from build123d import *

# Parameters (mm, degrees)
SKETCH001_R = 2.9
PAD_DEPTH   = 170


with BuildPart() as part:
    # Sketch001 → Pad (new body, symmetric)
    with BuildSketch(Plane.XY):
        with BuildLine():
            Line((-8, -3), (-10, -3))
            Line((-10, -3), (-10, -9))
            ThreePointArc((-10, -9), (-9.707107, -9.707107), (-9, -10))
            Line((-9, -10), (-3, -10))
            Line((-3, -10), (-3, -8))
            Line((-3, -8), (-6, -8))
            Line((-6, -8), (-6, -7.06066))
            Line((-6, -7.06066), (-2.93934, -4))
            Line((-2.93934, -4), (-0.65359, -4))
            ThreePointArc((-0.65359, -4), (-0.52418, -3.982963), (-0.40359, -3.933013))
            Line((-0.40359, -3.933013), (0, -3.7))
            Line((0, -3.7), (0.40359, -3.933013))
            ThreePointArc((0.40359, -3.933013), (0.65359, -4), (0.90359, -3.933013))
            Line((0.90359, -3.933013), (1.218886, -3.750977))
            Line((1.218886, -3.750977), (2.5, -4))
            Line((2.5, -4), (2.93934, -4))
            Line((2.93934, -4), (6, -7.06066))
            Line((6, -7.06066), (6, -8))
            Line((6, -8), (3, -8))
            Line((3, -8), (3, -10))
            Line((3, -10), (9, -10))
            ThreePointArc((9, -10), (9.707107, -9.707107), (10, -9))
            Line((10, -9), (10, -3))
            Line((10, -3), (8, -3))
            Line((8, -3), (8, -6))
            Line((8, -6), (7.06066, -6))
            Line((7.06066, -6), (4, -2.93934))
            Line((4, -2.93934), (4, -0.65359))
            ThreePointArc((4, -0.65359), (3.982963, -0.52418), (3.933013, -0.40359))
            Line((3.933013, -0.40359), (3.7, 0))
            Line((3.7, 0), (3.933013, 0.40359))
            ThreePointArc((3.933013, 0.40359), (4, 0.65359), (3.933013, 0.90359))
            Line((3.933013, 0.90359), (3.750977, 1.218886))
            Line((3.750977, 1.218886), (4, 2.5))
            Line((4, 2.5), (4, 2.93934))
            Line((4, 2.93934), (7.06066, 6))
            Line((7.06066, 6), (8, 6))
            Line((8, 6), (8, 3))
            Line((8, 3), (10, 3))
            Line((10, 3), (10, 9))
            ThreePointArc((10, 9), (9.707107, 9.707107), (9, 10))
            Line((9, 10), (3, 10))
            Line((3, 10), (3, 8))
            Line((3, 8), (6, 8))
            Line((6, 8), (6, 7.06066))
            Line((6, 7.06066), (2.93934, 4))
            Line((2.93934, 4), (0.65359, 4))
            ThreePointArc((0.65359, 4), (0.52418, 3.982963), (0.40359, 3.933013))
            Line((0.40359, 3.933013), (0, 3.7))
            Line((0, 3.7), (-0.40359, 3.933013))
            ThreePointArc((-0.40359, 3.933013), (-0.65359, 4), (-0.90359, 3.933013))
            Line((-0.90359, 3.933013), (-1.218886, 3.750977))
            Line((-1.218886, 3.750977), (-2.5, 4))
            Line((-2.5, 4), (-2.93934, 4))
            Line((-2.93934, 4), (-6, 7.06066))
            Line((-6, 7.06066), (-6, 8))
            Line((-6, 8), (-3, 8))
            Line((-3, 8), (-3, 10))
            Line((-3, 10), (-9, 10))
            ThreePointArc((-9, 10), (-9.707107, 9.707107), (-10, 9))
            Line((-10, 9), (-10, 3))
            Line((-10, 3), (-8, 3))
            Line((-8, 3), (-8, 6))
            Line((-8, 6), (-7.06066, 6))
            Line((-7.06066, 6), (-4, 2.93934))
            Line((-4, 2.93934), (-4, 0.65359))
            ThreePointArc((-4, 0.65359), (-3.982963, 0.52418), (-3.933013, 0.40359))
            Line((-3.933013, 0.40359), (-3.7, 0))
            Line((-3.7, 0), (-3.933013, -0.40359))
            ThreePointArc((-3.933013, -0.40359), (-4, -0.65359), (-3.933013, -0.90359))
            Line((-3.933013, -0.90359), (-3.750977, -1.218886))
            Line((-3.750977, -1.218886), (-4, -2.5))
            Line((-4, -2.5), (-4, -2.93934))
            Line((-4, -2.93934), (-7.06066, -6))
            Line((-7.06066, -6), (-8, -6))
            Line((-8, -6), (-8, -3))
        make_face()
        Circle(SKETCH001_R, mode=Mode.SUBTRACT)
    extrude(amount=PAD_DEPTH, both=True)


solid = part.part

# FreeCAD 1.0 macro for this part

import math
import FreeCAD as App
import Part
import Sketcher

V = App.Vector
Q = App.Units.Quantity

doc = App.newDocument("Part")
body = doc.addObject("PartDesign::Body", "Body")

sketch1 = body.newObject("Sketcher::SketchObject", "Sketch")
sketch1.AttachmentSupport = (doc.getObject("XY_Plane"), [""])
sketch1.MapMode = "FlatFace"
sketch1.addGeometry(Part.LineSegment(V(-8, -3, 0), V(-10, -3, 0)), False)
sketch1.addGeometry(Part.LineSegment(V(-10, -3, 0), V(-10, -9, 0)), False)
sketch1.addGeometry(Part.ArcOfCircle(Part.Circle(V(-9, -9, 0), V(0, 0, 1), 1), math.radians(180), math.radians(270)), False)
sketch1.addGeometry(Part.LineSegment(V(-9, -10, 0), V(-3, -10, 0)), False)
sketch1.addGeometry(Part.LineSegment(V(-3, -10, 0), V(-3, -8, 0)), False)
sketch1.addGeometry(Part.LineSegment(V(-3, -8, 0), V(-6, -8, 0)), False)
sketch1.addGeometry(Part.LineSegment(V(-6, -8, 0), V(-6, -7.06, 0)), False)
sketch1.addGeometry(Part.LineSegment(V(-6, -7.06, 0), V(-2.94, -4, 0)), False)
sketch1.addGeometry(Part.LineSegment(V(-2.94, -4, 0), V(-0.65, -4, 0)), False)
sketch1.addGeometry(Part.ArcOfCircle(Part.Circle(V(-0.65, -3.5, 0), V(0, 0, 1), 0.5), math.radians(-90), math.radians(-60)), False)
sketch1.addGeometry(Part.LineSegment(V(-0.4, -3.93, 0), V(0, -3.7, 0)), False)
sketch1.addGeometry(Part.LineSegment(V(0, -3.7, 0), V(0.4, -3.93, 0)), False)
sketch1.addGeometry(Part.ArcOfCircle(Part.Circle(V(0.65, -3.5, 0), V(0, 0, 1), 0.5), math.radians(-120), math.radians(-60)), False)
sketch1.addGeometry(Part.LineSegment(V(0.9, -3.93, 0), V(1.22, -3.75, 0)), False)
sketch1.addGeometry(Part.LineSegment(V(1.22, -3.75, 0), V(2.5, -4, 0)), False)
sketch1.addGeometry(Part.LineSegment(V(2.5, -4, 0), V(2.94, -4, 0)), False)
sketch1.addGeometry(Part.LineSegment(V(2.94, -4, 0), V(6, -7.06, 0)), False)
sketch1.addGeometry(Part.LineSegment(V(6, -7.06, 0), V(6, -8, 0)), False)
sketch1.addGeometry(Part.LineSegment(V(6, -8, 0), V(3, -8, 0)), False)
sketch1.addGeometry(Part.LineSegment(V(3, -8, 0), V(3, -10, 0)), False)
sketch1.addGeometry(Part.LineSegment(V(3, -10, 0), V(9, -10, 0)), False)
sketch1.addGeometry(Part.ArcOfCircle(Part.Circle(V(9, -9, 0), V(0, 0, 1), 1), math.radians(-90), math.radians(0)), False)
sketch1.addGeometry(Part.LineSegment(V(10, -9, 0), V(10, -3, 0)), False)
sketch1.addGeometry(Part.LineSegment(V(10, -3, 0), V(8, -3, 0)), False)
sketch1.addGeometry(Part.LineSegment(V(8, -3, 0), V(8, -6, 0)), False)
sketch1.addGeometry(Part.LineSegment(V(8, -6, 0), V(7.06, -6, 0)), False)
sketch1.addGeometry(Part.LineSegment(V(7.06, -6, 0), V(4, -2.94, 0)), False)
sketch1.addGeometry(Part.LineSegment(V(4, -2.94, 0), V(4, -0.65, 0)), False)
sketch1.addGeometry(Part.ArcOfCircle(Part.Circle(V(3.5, -0.65, 0), V(0, 0, 1), 0.5), math.radians(0), math.radians(30)), False)
sketch1.addGeometry(Part.LineSegment(V(3.93, -0.4, 0), V(3.7, 0, 0)), False)
sketch1.addGeometry(Part.LineSegment(V(3.7, 0, 0), V(3.93, 0.4, 0)), False)
sketch1.addGeometry(Part.ArcOfCircle(Part.Circle(V(3.5, 0.65, 0), V(0, 0, 1), 0.5), math.radians(-30), math.radians(30)), False)
sketch1.addGeometry(Part.LineSegment(V(3.93, 0.9, 0), V(3.75, 1.22, 0)), False)
sketch1.addGeometry(Part.LineSegment(V(3.75, 1.22, 0), V(4, 2.5, 0)), False)
sketch1.addGeometry(Part.LineSegment(V(4, 2.5, 0), V(4, 2.94, 0)), False)
sketch1.addGeometry(Part.LineSegment(V(4, 2.94, 0), V(7.06, 6, 0)), False)
sketch1.addGeometry(Part.LineSegment(V(7.06, 6, 0), V(8, 6, 0)), False)
sketch1.addGeometry(Part.LineSegment(V(8, 6, 0), V(8, 3, 0)), False)
sketch1.addGeometry(Part.LineSegment(V(8, 3, 0), V(10, 3, 0)), False)
sketch1.addGeometry(Part.LineSegment(V(10, 3, 0), V(10, 9, 0)), False)
sketch1.addGeometry(Part.ArcOfCircle(Part.Circle(V(9, 9, 0), V(0, 0, 1), 1), math.radians(0), math.radians(90)), False)
sketch1.addGeometry(Part.LineSegment(V(9, 10, 0), V(3, 10, 0)), False)
sketch1.addGeometry(Part.LineSegment(V(3, 10, 0), V(3, 8, 0)), False)
sketch1.addGeometry(Part.LineSegment(V(3, 8, 0), V(6, 8, 0)), False)
sketch1.addGeometry(Part.LineSegment(V(6, 8, 0), V(6, 7.06, 0)), False)
sketch1.addGeometry(Part.LineSegment(V(6, 7.06, 0), V(2.94, 4, 0)), False)
sketch1.addGeometry(Part.LineSegment(V(2.94, 4, 0), V(0.65, 4, 0)), False)
sketch1.addGeometry(Part.ArcOfCircle(Part.Circle(V(0.65, 3.5, 0), V(0, 0, 1), 0.5), math.radians(90), math.radians(120)), False)
sketch1.addGeometry(Part.LineSegment(V(0.4, 3.93, 0), V(0, 3.7, 0)), False)
sketch1.addGeometry(Part.LineSegment(V(0, 3.7, 0), V(-0.4, 3.93, 0)), False)
sketch1.addGeometry(Part.ArcOfCircle(Part.Circle(V(-0.65, 3.5, 0), V(0, 0, 1), 0.5), math.radians(60), math.radians(120)), False)
sketch1.addGeometry(Part.LineSegment(V(-0.9, 3.93, 0), V(-1.22, 3.75, 0)), False)
sketch1.addGeometry(Part.LineSegment(V(-1.22, 3.75, 0), V(-2.5, 4, 0)), False)
sketch1.addGeometry(Part.LineSegment(V(-2.5, 4, 0), V(-2.94, 4, 0)), False)
sketch1.addGeometry(Part.LineSegment(V(-2.94, 4, 0), V(-6, 7.06, 0)), False)
sketch1.addGeometry(Part.LineSegment(V(-6, 7.06, 0), V(-6, 8, 0)), False)
sketch1.addGeometry(Part.LineSegment(V(-6, 8, 0), V(-3, 8, 0)), False)
sketch1.addGeometry(Part.LineSegment(V(-3, 8, 0), V(-3, 10, 0)), False)
sketch1.addGeometry(Part.LineSegment(V(-3, 10, 0), V(-9, 10, 0)), False)
sketch1.addGeometry(Part.ArcOfCircle(Part.Circle(V(-9, 9, 0), V(0, 0, 1), 1), math.radians(90), math.radians(180)), False)
sketch1.addGeometry(Part.LineSegment(V(-10, 9, 0), V(-10, 3, 0)), False)
sketch1.addGeometry(Part.LineSegment(V(-10, 3, 0), V(-8, 3, 0)), False)
sketch1.addGeometry(Part.LineSegment(V(-8, 3, 0), V(-8, 6, 0)), False)
sketch1.addGeometry(Part.LineSegment(V(-8, 6, 0), V(-7.06, 6, 0)), False)
sketch1.addGeometry(Part.LineSegment(V(-7.06, 6, 0), V(-4, 2.94, 0)), False)
sketch1.addGeometry(Part.LineSegment(V(-4, 2.94, 0), V(-4, 0.65, 0)), False)
sketch1.addGeometry(Part.ArcOfCircle(Part.Circle(V(-3.5, 0.65, 0), V(0, 0, 1), 0.5), math.radians(180), math.radians(210)), False)
sketch1.addGeometry(Part.LineSegment(V(-3.93, 0.4, 0), V(-3.7, 0, 0)), False)
sketch1.addGeometry(Part.LineSegment(V(-3.7, 0, 0), V(-3.93, -0.4, 0)), False)
sketch1.addGeometry(Part.ArcOfCircle(Part.Circle(V(-3.5, -0.65, 0), V(0, 0, 1), 0.5), math.radians(150), math.radians(210)), False)
sketch1.addGeometry(Part.LineSegment(V(-3.93, -0.9, 0), V(-3.75, -1.22, 0)), False)
sketch1.addGeometry(Part.LineSegment(V(-3.75, -1.22, 0), V(-4, -2.5, 0)), False)
sketch1.addGeometry(Part.LineSegment(V(-4, -2.5, 0), V(-4, -2.94, 0)), False)
sketch1.addGeometry(Part.LineSegment(V(-4, -2.94, 0), V(-7.06, -6, 0)), False)
sketch1.addGeometry(Part.LineSegment(V(-7.06, -6, 0), V(-8, -6, 0)), False)
sketch1.addGeometry(Part.LineSegment(V(-8, -6, 0), V(-8, -3, 0)), False)
sketch1.addGeometry(Part.Circle(V(0, 0, 0), V(0, 0, 1), 2.9), False)
sketch1.addConstraint(Sketcher.Constraint("Coincident", 0, 2, 1, 1))
sketch1.addConstraint(Sketcher.Constraint("Tangent", 1, 2, 2, 1))
sketch1.addConstraint(Sketcher.Constraint("Tangent", 2, 2, 3, 1))
sketch1.addConstraint(Sketcher.Constraint("Coincident", 3, 2, 4, 1))
sketch1.addConstraint(Sketcher.Constraint("Coincident", 4, 2, 5, 1))
sketch1.addConstraint(Sketcher.Constraint("Coincident", 5, 2, 6, 1))
sketch1.addConstraint(Sketcher.Constraint("Coincident", 6, 2, 7, 1))
sketch1.addConstraint(Sketcher.Constraint("Coincident", 7, 2, 8, 1))
sketch1.addConstraint(Sketcher.Constraint("Coincident", 8, 2, 9, 1))
sketch1.addConstraint(Sketcher.Constraint("Tangent", 9, 2, 10, 1))
sketch1.addConstraint(Sketcher.Constraint("Coincident", 10, 2, 11, 1))
sketch1.addConstraint(Sketcher.Constraint("Coincident", 11, 2, 12, 1))
sketch1.addConstraint(Sketcher.Constraint("Tangent", 12, 2, 13, 1))
sketch1.addConstraint(Sketcher.Constraint("Coincident", 13, 2, 14, 1))
sketch1.addConstraint(Sketcher.Constraint("Coincident", 14, 2, 15, 1))
sketch1.addConstraint(Sketcher.Constraint("Coincident", 15, 2, 16, 1))
sketch1.addConstraint(Sketcher.Constraint("Coincident", 16, 2, 17, 1))
sketch1.addConstraint(Sketcher.Constraint("Coincident", 17, 2, 18, 1))
sketch1.addConstraint(Sketcher.Constraint("Coincident", 18, 2, 19, 1))
sketch1.addConstraint(Sketcher.Constraint("Coincident", 19, 2, 20, 1))
sketch1.addConstraint(Sketcher.Constraint("Tangent", 20, 2, 21, 1))
sketch1.addConstraint(Sketcher.Constraint("Tangent", 21, 2, 22, 1))
sketch1.addConstraint(Sketcher.Constraint("Coincident", 22, 2, 23, 1))
sketch1.addConstraint(Sketcher.Constraint("Coincident", 23, 2, 24, 1))
sketch1.addConstraint(Sketcher.Constraint("Coincident", 24, 2, 25, 1))
sketch1.addConstraint(Sketcher.Constraint("Coincident", 25, 2, 26, 1))
sketch1.addConstraint(Sketcher.Constraint("Coincident", 26, 2, 27, 1))
sketch1.addConstraint(Sketcher.Constraint("Coincident", 27, 2, 28, 1))
sketch1.addConstraint(Sketcher.Constraint("Tangent", 28, 2, 29, 1))
sketch1.addConstraint(Sketcher.Constraint("Coincident", 29, 2, 30, 1))
sketch1.addConstraint(Sketcher.Constraint("Coincident", 30, 2, 31, 1))
sketch1.addConstraint(Sketcher.Constraint("Tangent", 31, 2, 32, 1))
sketch1.addConstraint(Sketcher.Constraint("Coincident", 32, 2, 33, 1))
sketch1.addConstraint(Sketcher.Constraint("Coincident", 33, 2, 34, 1))
sketch1.addConstraint(Sketcher.Constraint("Coincident", 34, 2, 35, 1))
sketch1.addConstraint(Sketcher.Constraint("Coincident", 35, 2, 36, 1))
sketch1.addConstraint(Sketcher.Constraint("Coincident", 36, 2, 37, 1))
sketch1.addConstraint(Sketcher.Constraint("Coincident", 37, 2, 38, 1))
sketch1.addConstraint(Sketcher.Constraint("Coincident", 38, 2, 39, 1))
sketch1.addConstraint(Sketcher.Constraint("Tangent", 39, 2, 40, 1))
sketch1.addConstraint(Sketcher.Constraint("Tangent", 40, 2, 41, 1))
sketch1.addConstraint(Sketcher.Constraint("Coincident", 41, 2, 42, 1))
sketch1.addConstraint(Sketcher.Constraint("Coincident", 42, 2, 43, 1))
sketch1.addConstraint(Sketcher.Constraint("Coincident", 43, 2, 44, 1))
sketch1.addConstraint(Sketcher.Constraint("Coincident", 44, 2, 45, 1))
sketch1.addConstraint(Sketcher.Constraint("Coincident", 45, 2, 46, 1))
sketch1.addConstraint(Sketcher.Constraint("Coincident", 46, 2, 47, 1))
sketch1.addConstraint(Sketcher.Constraint("Tangent", 47, 2, 48, 1))
sketch1.addConstraint(Sketcher.Constraint("Coincident", 48, 2, 49, 1))
sketch1.addConstraint(Sketcher.Constraint("Coincident", 49, 2, 50, 1))
sketch1.addConstraint(Sketcher.Constraint("Tangent", 50, 2, 51, 1))
sketch1.addConstraint(Sketcher.Constraint("Coincident", 51, 2, 52, 1))
sketch1.addConstraint(Sketcher.Constraint("Coincident", 52, 2, 53, 1))
sketch1.addConstraint(Sketcher.Constraint("Coincident", 53, 2, 54, 1))
sketch1.addConstraint(Sketcher.Constraint("Coincident", 54, 2, 55, 1))
sketch1.addConstraint(Sketcher.Constraint("Coincident", 55, 2, 56, 1))
sketch1.addConstraint(Sketcher.Constraint("Coincident", 56, 2, 57, 1))
sketch1.addConstraint(Sketcher.Constraint("Coincident", 57, 2, 58, 1))
sketch1.addConstraint(Sketcher.Constraint("Tangent", 58, 2, 59, 1))
sketch1.addConstraint(Sketcher.Constraint("Tangent", 59, 2, 60, 1))
sketch1.addConstraint(Sketcher.Constraint("Coincident", 60, 2, 61, 1))
sketch1.addConstraint(Sketcher.Constraint("Coincident", 61, 2, 62, 1))
sketch1.addConstraint(Sketcher.Constraint("Coincident", 62, 2, 63, 1))
sketch1.addConstraint(Sketcher.Constraint("Coincident", 63, 2, 64, 1))
sketch1.addConstraint(Sketcher.Constraint("Coincident", 64, 2, 65, 1))
sketch1.addConstraint(Sketcher.Constraint("Coincident", 65, 2, 66, 1))
sketch1.addConstraint(Sketcher.Constraint("Tangent", 66, 2, 67, 1))
sketch1.addConstraint(Sketcher.Constraint("Coincident", 67, 2, 68, 1))
sketch1.addConstraint(Sketcher.Constraint("Coincident", 68, 2, 69, 1))
sketch1.addConstraint(Sketcher.Constraint("Tangent", 69, 2, 70, 1))
sketch1.addConstraint(Sketcher.Constraint("Coincident", 70, 2, 71, 1))
sketch1.addConstraint(Sketcher.Constraint("Coincident", 71, 2, 72, 1))
sketch1.addConstraint(Sketcher.Constraint("Coincident", 72, 2, 73, 1))
sketch1.addConstraint(Sketcher.Constraint("Coincident", 73, 2, 74, 1))
sketch1.addConstraint(Sketcher.Constraint("Coincident", 74, 2, 75, 1))
sketch1.addConstraint(Sketcher.Constraint("Coincident", 75, 2, 0, 1))
sketch1.addConstraint(Sketcher.Constraint("Horizontal", 0))
sketch1.addConstraint(Sketcher.Constraint("Vertical", 1))
sketch1.addConstraint(Sketcher.Constraint("Horizontal", 3))
sketch1.addConstraint(Sketcher.Constraint("Vertical", 4))
sketch1.addConstraint(Sketcher.Constraint("Horizontal", 5))
sketch1.addConstraint(Sketcher.Constraint("Vertical", 6))
sketch1.addConstraint(Sketcher.Constraint("Horizontal", 8))
sketch1.addConstraint(Sketcher.Constraint("Horizontal", 15))
sketch1.addConstraint(Sketcher.Constraint("Vertical", 17))
sketch1.addConstraint(Sketcher.Constraint("Horizontal", 18))
sketch1.addConstraint(Sketcher.Constraint("Vertical", 19))
sketch1.addConstraint(Sketcher.Constraint("Horizontal", 20))
sketch1.addConstraint(Sketcher.Constraint("Vertical", 22))
sketch1.addConstraint(Sketcher.Constraint("Horizontal", 23))
sketch1.addConstraint(Sketcher.Constraint("Vertical", 24))
sketch1.addConstraint(Sketcher.Constraint("Horizontal", 25))
sketch1.addConstraint(Sketcher.Constraint("Vertical", 27))
sketch1.addConstraint(Sketcher.Constraint("Vertical", 34))
sketch1.addConstraint(Sketcher.Constraint("Horizontal", 36))
sketch1.addConstraint(Sketcher.Constraint("Vertical", 37))
sketch1.addConstraint(Sketcher.Constraint("Horizontal", 38))
sketch1.addConstraint(Sketcher.Constraint("Vertical", 39))
sketch1.addConstraint(Sketcher.Constraint("Horizontal", 41))
sketch1.addConstraint(Sketcher.Constraint("Vertical", 42))
sketch1.addConstraint(Sketcher.Constraint("Horizontal", 43))
sketch1.addConstraint(Sketcher.Constraint("Vertical", 44))
sketch1.addConstraint(Sketcher.Constraint("Horizontal", 46))
sketch1.addConstraint(Sketcher.Constraint("Horizontal", 53))
sketch1.addConstraint(Sketcher.Constraint("Vertical", 55))
sketch1.addConstraint(Sketcher.Constraint("Horizontal", 56))
sketch1.addConstraint(Sketcher.Constraint("Vertical", 57))
sketch1.addConstraint(Sketcher.Constraint("Horizontal", 58))
sketch1.addConstraint(Sketcher.Constraint("Vertical", 60))
sketch1.addConstraint(Sketcher.Constraint("Horizontal", 61))
sketch1.addConstraint(Sketcher.Constraint("Vertical", 62))
sketch1.addConstraint(Sketcher.Constraint("Horizontal", 63))
sketch1.addConstraint(Sketcher.Constraint("Vertical", 65))
sketch1.addConstraint(Sketcher.Constraint("Vertical", 72))
sketch1.addConstraint(Sketcher.Constraint("Horizontal", 74))
sketch1.addConstraint(Sketcher.Constraint("Vertical", 75))
sketch1.addConstraint(Sketcher.Constraint("Coincident", 76, 3, -1, 1))
sketch1.addConstraint(Sketcher.Constraint("Equal", 2, 21))
sketch1.addConstraint(Sketcher.Constraint("Equal", 9, 28))
sketch1.addConstraint(Sketcher.Constraint("Equal", 12, 31))
sketch1.addConstraint(Sketcher.Constraint("Equal", 21, 40))
sketch1.addConstraint(Sketcher.Constraint("Equal", 28, 47))
sketch1.addConstraint(Sketcher.Constraint("Equal", 31, 50))
sketch1.addConstraint(Sketcher.Constraint("Equal", 40, 59))
sketch1.addConstraint(Sketcher.Constraint("Equal", 47, 66))
sketch1.addConstraint(Sketcher.Constraint("Equal", 50, 69))
sketch1.addConstraint(Sketcher.Constraint("Symmetric", 2, 3, 40, 3, -1, 1))
sketch1.addConstraint(Sketcher.Constraint("Symmetric", 9, 3, 47, 3, -1, 1))
sketch1.addConstraint(Sketcher.Constraint("Symmetric", 12, 3, 50, 3, -1, 1))
sketch1.addConstraint(Sketcher.Constraint("Symmetric", 21, 3, 59, 3, -1, 1))
sketch1.addConstraint(Sketcher.Constraint("Symmetric", 28, 3, 66, 3, -1, 1))
sketch1.addConstraint(Sketcher.Constraint("Symmetric", 31, 3, 69, 3, -1, 1))
sketch1.addConstraint(Sketcher.Constraint("Symmetric", 4, 2, 42, 2, -1, 1))
sketch1.addConstraint(Sketcher.Constraint("Symmetric", 6, 2, 44, 2, -1, 1))
sketch1.addConstraint(Sketcher.Constraint("Symmetric", 10, 2, 48, 2, -1, 1))
sketch1.addConstraint(Sketcher.Constraint("Symmetric", 13, 2, 51, 2, -1, 1))
sketch1.addConstraint(Sketcher.Constraint("Symmetric", 14, 2, 52, 2, -1, 1))
sketch1.addConstraint(Sketcher.Constraint("Symmetric", 16, 2, 54, 2, -1, 1))
sketch1.addConstraint(Sketcher.Constraint("Symmetric", 18, 2, 56, 2, -1, 1))
sketch1.addConstraint(Sketcher.Constraint("Symmetric", 23, 2, 61, 2, -1, 1))
sketch1.addConstraint(Sketcher.Constraint("Symmetric", 25, 2, 63, 2, -1, 1))
sketch1.addConstraint(Sketcher.Constraint("Symmetric", 29, 2, 67, 2, -1, 1))
sketch1.addConstraint(Sketcher.Constraint("Symmetric", 32, 2, 70, 2, -1, 1))
sketch1.addConstraint(Sketcher.Constraint("Symmetric", 33, 2, 71, 2, -1, 1))
sketch1.addConstraint(Sketcher.Constraint("Symmetric", 35, 2, 73, 2, -1, 1))
sketch1.addConstraint(Sketcher.Constraint("Symmetric", 37, 2, 75, 2, -1, 1))
sketch1.addConstraint(Sketcher.Constraint("Symmetric", 9, 3, 12, 3, -2))
sketch1.addConstraint(Sketcher.Constraint("Symmetric", 2, 3, 21, 3, -2))
sketch1.addConstraint(Sketcher.Constraint("Symmetric", 31, 3, 66, 3, -2))
sketch1.addConstraint(Sketcher.Constraint("Symmetric", 9, 2, 11, 2, -2))
sketch1.addConstraint(Sketcher.Constraint("Symmetric", 7, 2, 15, 2, -2))
sketch1.addConstraint(Sketcher.Constraint("Symmetric", 6, 2, 16, 2, -2))
sketch1.addConstraint(Sketcher.Constraint("Symmetric", 4, 2, 18, 2, -2))
sketch1.addConstraint(Sketcher.Constraint("Symmetric", 37, 2, 61, 2, -2))
sketch1.addConstraint(Sketcher.Constraint("Symmetric", 35, 2, 63, 2, -2))
sketch1.addConstraint(Sketcher.Constraint("Symmetric", 34, 2, 64, 2, -2))
sketch1.addConstraint(Sketcher.Constraint("PointOnObject", 10, 2, -2))
sketch1.addConstraint(Sketcher.Constraint("PointOnObject", 29, 2, -1))
sketch1.addConstraint(Sketcher.Constraint("Parallel", 10, 13))
sketch1.addConstraint(Sketcher.Constraint("Perpendicular", 7, 16))
sketch1.addConstraint(Sketcher.Constraint("Parallel", 16, 26))
sketch1.addConstraint(Sketcher.Constraint("Perpendicular", 13, 29))
sketch1.addConstraint(Sketcher.Constraint("Parallel", 29, 32))
sketch1.addConstraint(Sketcher.Constraint("Perpendicular", 14, 33))
sketch1.addConstraint(Sketcher.Constraint("Perpendicular", 26, 35))
sketch1.addConstraint(Sketcher.Constraint("Parallel", 35, 45))
sketch1.addConstraint(Sketcher.Constraint("Perpendicular", 45, 54))
sketch1.addConstraint(Sketcher.Constraint("Perpendicular", 64, 73))
sketch1.addConstraint(Sketcher.Constraint("Horizontal", 69, 3, 27, 2))
sketch1.addConstraint(Sketcher.Constraint("Horizontal", 47, 2, 49, 2))
sketch1.addConstraint(Sketcher.Constraint("Horizontal", 66, 3, 65, 2))
sketch1.addConstraint(Sketcher.Constraint("Horizontal", 30, 2, 66, 2))
sketch1.addConstraint(Sketcher.Constraint("Horizontal", 28, 2, 68, 2))
sketch1.addConstraint(Sketcher.Constraint("Vertical", 50, 3, 8, 2))
sketch1.addConstraint(Sketcher.Constraint("Vertical", 47, 3, 46, 2))
sketch1.addConstraint(Sketcher.Constraint("Equal", 58, 1))
sketch1.addConstraint(Sketcher.Constraint("Equal", 61, 4))
sketch1.addConstraint(Sketcher.Constraint("Equal", 74, 6))
sketch1.addConstraint(Sketcher.Constraint("Equal", 56, 24))
sketch1.addConstraint(Sketcher.Constraint("Equal", 46, 27))
sketch1.addConstraint(Sketcher.Constraint("Equal", 53, 34))
sketch1.addConstraint(Sketcher.Constraint("Equal", 16, 26))
sketch1.addConstraint(Sketcher.Constraint("Equal", 11, 29))
sketch1.addConstraint(Sketcher.Constraint("Radius", 2, Q("0.999999 mm")))
sketch1.addConstraint(Sketcher.Constraint("Diameter", 76, Q("5.8 mm")))
sketch1.addConstraint(Sketcher.Constraint("Radius", 12, Q("0.500002 mm")))
sketch1.addConstraint(Sketcher.Constraint("DistanceX", 0, 2, 0, 1, Q("2 mm")))
sketch1.addConstraint(Sketcher.Constraint("DistanceX", 3, 1, 3, 2, Q("6 mm")))
sketch1.addConstraint(Sketcher.Constraint("DistanceX", 5, 2, 5, 1, Q("3 mm")))
sketch1.addConstraint(Sketcher.Constraint("Angle", 14, Q("-10.999986 deg")))
sketch1.addConstraint(Sketcher.Constraint("DistanceX", 2, 3, -1, 1, Q("9.000001 mm")))
sketch1.addConstraint(Sketcher.Constraint("DistanceY", 7, 2, -1, 1, Q("4 mm")))
sketch1.addConstraint(Sketcher.Constraint("DistanceY", 10, 2, -1, 1, Q("3.7 mm")))
sketch1.addConstraint(Sketcher.Constraint("DistanceX", -1, 1, 14, 2, Q("2.5 mm")))
sketch1.addConstraint(Sketcher.Constraint("DistanceX", 8, 1, 8, 2, Q("2.28575 mm")))
sketch1.addConstraint(Sketcher.Constraint("DistanceX", 15, 1, 15, 2, Q("0.43934 mm")))
pad1 = body.newObject("PartDesign::Pad", "Pad")
pad1.Profile = sketch1
pad1.Length = 340
pad1.Midplane = True

doc.recompute()
